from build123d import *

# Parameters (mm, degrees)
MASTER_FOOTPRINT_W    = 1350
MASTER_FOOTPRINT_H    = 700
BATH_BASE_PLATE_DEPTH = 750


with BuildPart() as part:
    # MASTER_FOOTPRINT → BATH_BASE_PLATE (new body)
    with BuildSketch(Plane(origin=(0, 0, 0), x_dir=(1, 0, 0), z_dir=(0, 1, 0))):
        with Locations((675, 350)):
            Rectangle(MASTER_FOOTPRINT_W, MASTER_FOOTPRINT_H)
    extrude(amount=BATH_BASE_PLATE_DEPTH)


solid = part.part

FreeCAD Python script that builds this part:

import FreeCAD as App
import Part
import Sketcher
Q = App.Units.Quantity


def add_polygon(sketch, points):
    """Adds a closed chain of lines whose ends are joined by coincident constraints."""
    first, n = sketch.GeometryCount, len(points)
    for a, b in zip(points, points[1:] + points[:1]):
        sketch.addGeometry(Part.LineSegment(App.Vector(*a, 0), App.Vector(*b, 0)), False)
    for i in range(n):
        sketch.addConstraint(Sketcher.Constraint("Coincident", first + i, 2, first + (i + 1) % n, 1))

doc = App.newDocument("Part")
params = doc.addObject("Spreadsheet::Sheet", "Params")
for row, (alias, value) in enumerate([
    ("sketch1_width", "1350 mm"),
    ("sketch1_height", "700 mm"),
    ("pad1_length", "750 mm"),
], start=1):
    params.set(f"A{row}", alias)
    params.set(f"B{row}", "=" + value)
    params.setAlias(f"B{row}", alias)

body = doc.addObject("PartDesign::Body", "Body")

# Sketch on XZ plane
sketch1 = doc.addObject("Sketcher::SketchObject", "Sketch")
body.addObject(sketch1)
sketch1.AttachmentSupport = (doc.XZ_Plane, [""])
sketch1.MapMode = "FlatFace"
add_polygon(sketch1, [(0, -700), (0, 0), (1350, 0), (1350, -700)])  # lines 0-3
sketch1.addConstraint(Sketcher.Constraint("Vertical", 0))
sketch1.addConstraint(Sketcher.Constraint("Horizontal", 1))
sketch1.addConstraint(Sketcher.Constraint("Vertical", 2))
sketch1.addConstraint(Sketcher.Constraint("Horizontal", 3))
sketch1.addConstraint(Sketcher.Constraint("Coincident", 0, 2, -1, 1))
sketch1.addConstraint(Sketcher.Constraint("DistanceX", 1, 1, 1, 2, Q("1350 mm")))
sketch1.addConstraint(Sketcher.Constraint("DistanceY", 0, 1, 0, 2, Q("700 mm")))
sketch1.setExpression("Constraints[9]", "Params.sketch1_width")
sketch1.setExpression("Constraints[10]", "Params.sketch1_height")
pad1 = doc.addObject("PartDesign::Pad", "Pad")
body.addObject(pad1)
pad1.Profile = sketch1
pad1.setExpression("Length", "Params.pad1_length")
pad1.Reversed = True

doc.recompute()
